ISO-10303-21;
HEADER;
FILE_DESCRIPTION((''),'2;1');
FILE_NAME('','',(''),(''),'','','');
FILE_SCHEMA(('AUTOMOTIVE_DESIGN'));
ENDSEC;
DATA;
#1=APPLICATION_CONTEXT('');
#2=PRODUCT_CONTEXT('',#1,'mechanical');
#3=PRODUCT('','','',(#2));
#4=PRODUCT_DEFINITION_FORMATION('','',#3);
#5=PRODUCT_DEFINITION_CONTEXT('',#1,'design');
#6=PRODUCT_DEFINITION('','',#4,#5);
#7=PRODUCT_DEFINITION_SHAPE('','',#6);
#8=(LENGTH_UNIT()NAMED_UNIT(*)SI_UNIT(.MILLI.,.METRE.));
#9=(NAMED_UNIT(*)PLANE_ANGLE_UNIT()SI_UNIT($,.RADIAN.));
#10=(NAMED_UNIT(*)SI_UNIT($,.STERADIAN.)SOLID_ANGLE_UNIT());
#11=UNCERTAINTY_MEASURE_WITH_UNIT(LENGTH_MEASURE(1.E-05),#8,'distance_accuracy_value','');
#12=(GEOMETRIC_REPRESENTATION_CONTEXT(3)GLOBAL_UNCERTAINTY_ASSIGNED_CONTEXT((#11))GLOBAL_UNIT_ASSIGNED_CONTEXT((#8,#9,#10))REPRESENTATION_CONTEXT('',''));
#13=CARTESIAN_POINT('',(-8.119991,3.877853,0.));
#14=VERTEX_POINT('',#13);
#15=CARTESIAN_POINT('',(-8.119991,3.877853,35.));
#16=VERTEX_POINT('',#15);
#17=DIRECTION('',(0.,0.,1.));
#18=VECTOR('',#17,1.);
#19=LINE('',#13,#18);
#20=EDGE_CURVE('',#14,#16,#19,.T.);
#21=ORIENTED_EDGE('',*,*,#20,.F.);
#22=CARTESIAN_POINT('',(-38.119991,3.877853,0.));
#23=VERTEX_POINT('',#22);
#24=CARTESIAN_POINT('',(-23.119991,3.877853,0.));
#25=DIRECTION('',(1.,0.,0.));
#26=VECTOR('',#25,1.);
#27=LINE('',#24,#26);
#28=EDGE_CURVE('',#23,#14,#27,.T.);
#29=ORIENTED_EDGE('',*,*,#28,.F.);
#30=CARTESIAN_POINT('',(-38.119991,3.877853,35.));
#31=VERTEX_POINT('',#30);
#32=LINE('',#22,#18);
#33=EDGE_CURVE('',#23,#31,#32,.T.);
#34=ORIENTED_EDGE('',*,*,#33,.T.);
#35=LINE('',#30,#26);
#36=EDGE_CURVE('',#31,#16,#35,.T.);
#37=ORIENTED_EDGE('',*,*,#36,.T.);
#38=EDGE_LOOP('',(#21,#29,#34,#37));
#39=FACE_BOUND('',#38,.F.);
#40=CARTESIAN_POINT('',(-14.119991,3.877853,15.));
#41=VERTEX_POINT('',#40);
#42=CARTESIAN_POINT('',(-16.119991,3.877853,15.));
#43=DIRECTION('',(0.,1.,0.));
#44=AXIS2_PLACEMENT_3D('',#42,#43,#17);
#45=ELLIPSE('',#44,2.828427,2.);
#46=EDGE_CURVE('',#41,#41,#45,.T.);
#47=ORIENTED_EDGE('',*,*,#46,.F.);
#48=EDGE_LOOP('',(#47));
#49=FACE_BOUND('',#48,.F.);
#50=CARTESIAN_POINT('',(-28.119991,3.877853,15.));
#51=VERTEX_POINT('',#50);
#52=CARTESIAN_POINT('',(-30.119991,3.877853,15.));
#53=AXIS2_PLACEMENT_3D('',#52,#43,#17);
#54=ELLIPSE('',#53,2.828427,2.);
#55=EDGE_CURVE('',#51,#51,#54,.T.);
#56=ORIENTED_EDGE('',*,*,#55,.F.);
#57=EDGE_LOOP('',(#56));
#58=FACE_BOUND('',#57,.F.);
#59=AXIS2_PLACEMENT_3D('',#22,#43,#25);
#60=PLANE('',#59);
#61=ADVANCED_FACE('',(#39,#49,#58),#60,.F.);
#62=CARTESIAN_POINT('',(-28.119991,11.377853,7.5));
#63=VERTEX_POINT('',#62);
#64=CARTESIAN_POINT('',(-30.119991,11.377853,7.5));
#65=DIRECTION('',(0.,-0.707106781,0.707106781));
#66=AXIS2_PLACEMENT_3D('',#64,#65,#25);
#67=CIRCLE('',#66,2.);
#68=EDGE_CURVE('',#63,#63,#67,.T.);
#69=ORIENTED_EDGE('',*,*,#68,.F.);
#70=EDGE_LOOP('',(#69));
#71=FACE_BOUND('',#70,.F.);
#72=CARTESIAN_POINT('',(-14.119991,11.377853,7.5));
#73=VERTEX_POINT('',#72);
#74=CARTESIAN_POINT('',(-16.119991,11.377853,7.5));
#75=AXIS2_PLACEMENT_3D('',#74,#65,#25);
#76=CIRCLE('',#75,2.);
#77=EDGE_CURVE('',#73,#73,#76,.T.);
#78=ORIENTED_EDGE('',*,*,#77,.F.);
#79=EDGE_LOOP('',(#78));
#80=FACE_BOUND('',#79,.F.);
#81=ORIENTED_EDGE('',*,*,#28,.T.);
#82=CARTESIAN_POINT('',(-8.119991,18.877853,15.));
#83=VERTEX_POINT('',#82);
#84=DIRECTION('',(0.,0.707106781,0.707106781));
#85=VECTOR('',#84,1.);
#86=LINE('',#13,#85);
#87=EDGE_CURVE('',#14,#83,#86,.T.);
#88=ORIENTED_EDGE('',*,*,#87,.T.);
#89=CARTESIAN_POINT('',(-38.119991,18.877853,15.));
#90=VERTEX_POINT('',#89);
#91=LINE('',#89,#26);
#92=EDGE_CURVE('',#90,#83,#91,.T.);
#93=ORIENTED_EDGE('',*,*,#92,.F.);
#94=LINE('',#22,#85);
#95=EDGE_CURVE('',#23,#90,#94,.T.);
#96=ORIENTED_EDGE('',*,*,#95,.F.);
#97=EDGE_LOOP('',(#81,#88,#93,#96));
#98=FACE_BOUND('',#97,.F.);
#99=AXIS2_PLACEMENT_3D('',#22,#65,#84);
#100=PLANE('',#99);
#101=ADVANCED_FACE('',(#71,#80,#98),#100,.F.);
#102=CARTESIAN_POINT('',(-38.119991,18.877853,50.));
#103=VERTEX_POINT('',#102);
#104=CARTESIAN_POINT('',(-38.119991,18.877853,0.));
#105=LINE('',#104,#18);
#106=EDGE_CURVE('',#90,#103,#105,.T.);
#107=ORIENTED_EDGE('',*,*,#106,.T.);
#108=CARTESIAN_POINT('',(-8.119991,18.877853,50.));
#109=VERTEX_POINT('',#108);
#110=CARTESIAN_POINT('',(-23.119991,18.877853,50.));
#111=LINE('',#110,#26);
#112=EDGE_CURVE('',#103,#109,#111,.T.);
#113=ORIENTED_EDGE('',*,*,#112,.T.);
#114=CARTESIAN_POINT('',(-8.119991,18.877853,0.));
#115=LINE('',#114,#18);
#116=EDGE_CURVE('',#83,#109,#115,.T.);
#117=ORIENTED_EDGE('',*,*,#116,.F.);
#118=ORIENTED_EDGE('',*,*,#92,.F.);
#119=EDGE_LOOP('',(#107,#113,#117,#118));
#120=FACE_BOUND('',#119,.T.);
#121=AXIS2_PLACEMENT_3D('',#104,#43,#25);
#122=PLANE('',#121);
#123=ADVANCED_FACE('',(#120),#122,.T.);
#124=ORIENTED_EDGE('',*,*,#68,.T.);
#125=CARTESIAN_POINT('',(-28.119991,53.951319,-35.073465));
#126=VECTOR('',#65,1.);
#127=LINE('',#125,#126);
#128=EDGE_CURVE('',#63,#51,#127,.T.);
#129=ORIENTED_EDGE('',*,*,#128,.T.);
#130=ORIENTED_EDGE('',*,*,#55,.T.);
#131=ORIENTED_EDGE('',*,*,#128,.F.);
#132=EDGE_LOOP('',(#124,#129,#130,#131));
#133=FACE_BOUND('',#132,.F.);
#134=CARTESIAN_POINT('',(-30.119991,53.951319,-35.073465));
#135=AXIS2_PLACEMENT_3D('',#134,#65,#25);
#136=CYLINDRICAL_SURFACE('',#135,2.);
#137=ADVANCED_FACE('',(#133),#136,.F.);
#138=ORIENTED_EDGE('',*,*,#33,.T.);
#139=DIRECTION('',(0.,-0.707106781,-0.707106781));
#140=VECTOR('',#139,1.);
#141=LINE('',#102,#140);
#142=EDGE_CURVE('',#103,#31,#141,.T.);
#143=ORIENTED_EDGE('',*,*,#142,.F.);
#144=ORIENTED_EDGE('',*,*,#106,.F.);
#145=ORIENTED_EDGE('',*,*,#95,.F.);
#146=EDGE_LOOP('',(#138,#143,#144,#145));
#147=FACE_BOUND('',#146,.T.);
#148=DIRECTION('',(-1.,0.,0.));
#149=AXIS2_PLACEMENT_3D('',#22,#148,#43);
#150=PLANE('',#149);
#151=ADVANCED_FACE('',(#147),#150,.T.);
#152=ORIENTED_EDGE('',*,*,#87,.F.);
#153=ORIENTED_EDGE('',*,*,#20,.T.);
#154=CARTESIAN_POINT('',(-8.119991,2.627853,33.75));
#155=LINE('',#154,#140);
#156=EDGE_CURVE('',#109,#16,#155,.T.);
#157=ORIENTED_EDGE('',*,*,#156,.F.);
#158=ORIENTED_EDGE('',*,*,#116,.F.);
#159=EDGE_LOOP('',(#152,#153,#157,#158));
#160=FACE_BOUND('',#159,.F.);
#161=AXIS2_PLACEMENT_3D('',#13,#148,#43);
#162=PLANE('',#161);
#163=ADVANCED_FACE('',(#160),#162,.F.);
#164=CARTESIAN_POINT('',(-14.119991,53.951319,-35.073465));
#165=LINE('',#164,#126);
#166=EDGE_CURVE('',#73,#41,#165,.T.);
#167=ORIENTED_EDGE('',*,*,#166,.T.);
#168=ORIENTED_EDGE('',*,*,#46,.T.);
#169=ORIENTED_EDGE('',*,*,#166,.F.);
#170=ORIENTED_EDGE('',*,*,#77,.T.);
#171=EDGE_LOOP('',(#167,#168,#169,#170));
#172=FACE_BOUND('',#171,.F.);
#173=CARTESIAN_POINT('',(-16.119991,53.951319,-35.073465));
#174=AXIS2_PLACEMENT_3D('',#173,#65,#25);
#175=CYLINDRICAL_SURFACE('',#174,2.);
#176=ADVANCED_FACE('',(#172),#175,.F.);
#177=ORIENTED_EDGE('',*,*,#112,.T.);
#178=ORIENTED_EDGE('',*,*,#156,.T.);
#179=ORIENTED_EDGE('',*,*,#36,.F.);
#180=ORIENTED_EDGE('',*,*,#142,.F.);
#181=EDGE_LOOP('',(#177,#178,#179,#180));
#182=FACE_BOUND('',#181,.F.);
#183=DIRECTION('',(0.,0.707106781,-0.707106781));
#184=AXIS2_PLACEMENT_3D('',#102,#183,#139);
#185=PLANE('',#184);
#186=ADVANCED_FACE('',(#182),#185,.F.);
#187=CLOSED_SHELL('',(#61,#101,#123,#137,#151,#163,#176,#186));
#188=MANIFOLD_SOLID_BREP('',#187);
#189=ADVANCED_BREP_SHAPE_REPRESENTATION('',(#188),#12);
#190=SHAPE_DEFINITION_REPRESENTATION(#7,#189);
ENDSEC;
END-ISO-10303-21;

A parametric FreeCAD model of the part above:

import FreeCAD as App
import Part
import Sketcher
from FreeCAD import Vector


def add_polygon(sketch, points):
    """Adds a closed chain of lines whose ends are joined by coincident constraints."""
    first, n = sketch.GeometryCount, len(points)
    for a, b in zip(points, points[1:] + points[:1]):
        sketch.addGeometry(Part.LineSegment(App.Vector(*a, 0), App.Vector(*b, 0)), False)
    for i in range(n):
        sketch.addConstraint(Sketcher.Constraint("Coincident", first + i, 2, first + (i + 1) % n, 1))

doc = App.newDocument("Part")
params = doc.addObject("Spreadsheet::Sheet", "Params")
for row, (alias, value) in enumerate([
    ("sketch1_width", "30 mm"),
    ("sketch1_height", "15 mm"),
    ("pad1_length", "50 mm"),
    ("sketch2_width", "15 mm"),
    ("sketch3_diameter", "4 mm"),
    ("hole_diameter", "4 mm"),
], start=1):
    params.set(f"A{row}", alias)
    params.set(f"B{row}", "=" + value)
    params.setAlias(f"B{row}", alias)

body = doc.addObject("PartDesign::Body", "Body")

sketch1 = doc.addObject("Sketcher::SketchObject", "Sketch")
body.addObject(sketch1)
sketch1.AttachmentSupport = (doc.XY_Plane, [""])
sketch1.MapMode = "FlatFace"
add_polygon(sketch1, [(-38.119991, 18.877853), (-38.119991, 3.877853), (-8.119991, 3.877853), (-8.119991, 18.877853)])
sketch1.addConstraint([
    Sketcher.Constraint("Vertical", 0),
    Sketcher.Constraint("Horizontal", 1),
    Sketcher.Constraint("Vertical", 2),
    Sketcher.Constraint("Horizontal", 3),
    Sketcher.Constraint("DistanceX", 1, 1, 1, 2, 30.0),
    Sketcher.Constraint("DistanceY", 0, 2, 0, 1, 15.0),
    Sketcher.Constraint("DistanceX", 0, 2, -1, 1, 38.119991),
    Sketcher.Constraint("DistanceY", -1, 1, 0, 2, 3.877853),
])
sketch1.setExpression("Constraints[8]", "Params.sketch1_width")
sketch1.setExpression("Constraints[9]", "Params.sketch1_height")
pad1 = doc.addObject("PartDesign::Pad", "Pad")
body.addObject(pad1)
pad1.Profile = sketch1
pad1.setExpression("Length", "Params.pad1_length")

sketch2 = doc.addObject("Sketcher::SketchObject", "Sketch001")
body.addObject(sketch2)
sketch2.AttachmentSupport = (doc.YZ_Plane, [""])
sketch2.MapMode = "FlatFace"
sketch2.AttachmentOffset = App.Placement(Vector(0, 0, -38.119991), App.Rotation())
add_polygon(sketch2, [(3.877853, 50), (18.877853, 50), (3.877853, 35)])
add_polygon(sketch2, [(3.877853, 0), (18.877853, 15), (18.877853, 0)])
sketch2.addConstraint([
    Sketcher.Constraint("Horizontal", 0),
    Sketcher.Constraint("Vertical", 2),
    Sketcher.Constraint("Vertical", 4),
    Sketcher.Constraint("Horizontal", 5),
    Sketcher.Constraint("PointOnObject", 4, 2, -1),
    Sketcher.Constraint("Parallel", 1, 3),
    Sketcher.Constraint("Vertical", 0, 2, 3, 2),
    Sketcher.Constraint("Vertical", 2, 2, 5, 2),
    Sketcher.Constraint("Equal", 5, 2),
    Sketcher.Constraint("DistanceX", 0, 1, 0, 2, 15.0),
    Sketcher.Constraint("DistanceY", -1, 1, 0, 2, 50.0),
    Sketcher.Constraint("DistanceX", -1, 1, 0, 2, 18.877853),
])
sketch2.setExpression("Constraints[15]", "Params.sketch2_width")
pocket1 = doc.addObject("PartDesign::Pocket", "Pocket")
body.addObject(pocket1)
pocket1.Profile = sketch2
pocket1.Type = "ThroughAll"
pocket1.Reversed = True

sketch3 = doc.addObject("Sketcher::SketchObject", "Sketch002")
body.addObject(sketch3)
sketch3.Placement = App.Placement(Vector(0, 1.938926, -1.938926), App.Rotation(Vector(-1, 0, 0), Vector(0, 0.707106781, 0.707106781), Vector(0, 0.707106781, -0.707106781), "ZXY"))
sketch3.addGeometry([
    Part.Circle(Vector(30.119991, 13.348658, 0), Vector(0, 0, 1), 2),
    Part.Circle(Vector(16.119991, 13.348658, 0), Vector(0, 0, 1), 2),
], False)
sketch3.addConstraint([
    Sketcher.Constraint("Equal", 0, 1),
    Sketcher.Constraint("Horizontal", 0, 3, 1, 3),
    Sketcher.Constraint("Diameter", 0, 4.0),
    Sketcher.Constraint("DistanceX", 1, 3, 0, 3, 14.0),
    Sketcher.Constraint("DistanceX", -1, 1, 0, 3, 30.119991),
    Sketcher.Constraint("DistanceY", -1, 1, 0, 3, 13.348658),
])
sketch3.setExpression("Constraints[2]", "Params.sketch3_diameter")
doc.recompute()
hole = doc.addObject("PartDesign::Hole", "Hole")
body.addObject(hole)
hole.Profile = sketch3
hole.ThreadType = "None"
hole.setExpression("Diameter", "Params.hole_diameter")
hole.DepthType = "ThroughAll"

doc.recompute()
